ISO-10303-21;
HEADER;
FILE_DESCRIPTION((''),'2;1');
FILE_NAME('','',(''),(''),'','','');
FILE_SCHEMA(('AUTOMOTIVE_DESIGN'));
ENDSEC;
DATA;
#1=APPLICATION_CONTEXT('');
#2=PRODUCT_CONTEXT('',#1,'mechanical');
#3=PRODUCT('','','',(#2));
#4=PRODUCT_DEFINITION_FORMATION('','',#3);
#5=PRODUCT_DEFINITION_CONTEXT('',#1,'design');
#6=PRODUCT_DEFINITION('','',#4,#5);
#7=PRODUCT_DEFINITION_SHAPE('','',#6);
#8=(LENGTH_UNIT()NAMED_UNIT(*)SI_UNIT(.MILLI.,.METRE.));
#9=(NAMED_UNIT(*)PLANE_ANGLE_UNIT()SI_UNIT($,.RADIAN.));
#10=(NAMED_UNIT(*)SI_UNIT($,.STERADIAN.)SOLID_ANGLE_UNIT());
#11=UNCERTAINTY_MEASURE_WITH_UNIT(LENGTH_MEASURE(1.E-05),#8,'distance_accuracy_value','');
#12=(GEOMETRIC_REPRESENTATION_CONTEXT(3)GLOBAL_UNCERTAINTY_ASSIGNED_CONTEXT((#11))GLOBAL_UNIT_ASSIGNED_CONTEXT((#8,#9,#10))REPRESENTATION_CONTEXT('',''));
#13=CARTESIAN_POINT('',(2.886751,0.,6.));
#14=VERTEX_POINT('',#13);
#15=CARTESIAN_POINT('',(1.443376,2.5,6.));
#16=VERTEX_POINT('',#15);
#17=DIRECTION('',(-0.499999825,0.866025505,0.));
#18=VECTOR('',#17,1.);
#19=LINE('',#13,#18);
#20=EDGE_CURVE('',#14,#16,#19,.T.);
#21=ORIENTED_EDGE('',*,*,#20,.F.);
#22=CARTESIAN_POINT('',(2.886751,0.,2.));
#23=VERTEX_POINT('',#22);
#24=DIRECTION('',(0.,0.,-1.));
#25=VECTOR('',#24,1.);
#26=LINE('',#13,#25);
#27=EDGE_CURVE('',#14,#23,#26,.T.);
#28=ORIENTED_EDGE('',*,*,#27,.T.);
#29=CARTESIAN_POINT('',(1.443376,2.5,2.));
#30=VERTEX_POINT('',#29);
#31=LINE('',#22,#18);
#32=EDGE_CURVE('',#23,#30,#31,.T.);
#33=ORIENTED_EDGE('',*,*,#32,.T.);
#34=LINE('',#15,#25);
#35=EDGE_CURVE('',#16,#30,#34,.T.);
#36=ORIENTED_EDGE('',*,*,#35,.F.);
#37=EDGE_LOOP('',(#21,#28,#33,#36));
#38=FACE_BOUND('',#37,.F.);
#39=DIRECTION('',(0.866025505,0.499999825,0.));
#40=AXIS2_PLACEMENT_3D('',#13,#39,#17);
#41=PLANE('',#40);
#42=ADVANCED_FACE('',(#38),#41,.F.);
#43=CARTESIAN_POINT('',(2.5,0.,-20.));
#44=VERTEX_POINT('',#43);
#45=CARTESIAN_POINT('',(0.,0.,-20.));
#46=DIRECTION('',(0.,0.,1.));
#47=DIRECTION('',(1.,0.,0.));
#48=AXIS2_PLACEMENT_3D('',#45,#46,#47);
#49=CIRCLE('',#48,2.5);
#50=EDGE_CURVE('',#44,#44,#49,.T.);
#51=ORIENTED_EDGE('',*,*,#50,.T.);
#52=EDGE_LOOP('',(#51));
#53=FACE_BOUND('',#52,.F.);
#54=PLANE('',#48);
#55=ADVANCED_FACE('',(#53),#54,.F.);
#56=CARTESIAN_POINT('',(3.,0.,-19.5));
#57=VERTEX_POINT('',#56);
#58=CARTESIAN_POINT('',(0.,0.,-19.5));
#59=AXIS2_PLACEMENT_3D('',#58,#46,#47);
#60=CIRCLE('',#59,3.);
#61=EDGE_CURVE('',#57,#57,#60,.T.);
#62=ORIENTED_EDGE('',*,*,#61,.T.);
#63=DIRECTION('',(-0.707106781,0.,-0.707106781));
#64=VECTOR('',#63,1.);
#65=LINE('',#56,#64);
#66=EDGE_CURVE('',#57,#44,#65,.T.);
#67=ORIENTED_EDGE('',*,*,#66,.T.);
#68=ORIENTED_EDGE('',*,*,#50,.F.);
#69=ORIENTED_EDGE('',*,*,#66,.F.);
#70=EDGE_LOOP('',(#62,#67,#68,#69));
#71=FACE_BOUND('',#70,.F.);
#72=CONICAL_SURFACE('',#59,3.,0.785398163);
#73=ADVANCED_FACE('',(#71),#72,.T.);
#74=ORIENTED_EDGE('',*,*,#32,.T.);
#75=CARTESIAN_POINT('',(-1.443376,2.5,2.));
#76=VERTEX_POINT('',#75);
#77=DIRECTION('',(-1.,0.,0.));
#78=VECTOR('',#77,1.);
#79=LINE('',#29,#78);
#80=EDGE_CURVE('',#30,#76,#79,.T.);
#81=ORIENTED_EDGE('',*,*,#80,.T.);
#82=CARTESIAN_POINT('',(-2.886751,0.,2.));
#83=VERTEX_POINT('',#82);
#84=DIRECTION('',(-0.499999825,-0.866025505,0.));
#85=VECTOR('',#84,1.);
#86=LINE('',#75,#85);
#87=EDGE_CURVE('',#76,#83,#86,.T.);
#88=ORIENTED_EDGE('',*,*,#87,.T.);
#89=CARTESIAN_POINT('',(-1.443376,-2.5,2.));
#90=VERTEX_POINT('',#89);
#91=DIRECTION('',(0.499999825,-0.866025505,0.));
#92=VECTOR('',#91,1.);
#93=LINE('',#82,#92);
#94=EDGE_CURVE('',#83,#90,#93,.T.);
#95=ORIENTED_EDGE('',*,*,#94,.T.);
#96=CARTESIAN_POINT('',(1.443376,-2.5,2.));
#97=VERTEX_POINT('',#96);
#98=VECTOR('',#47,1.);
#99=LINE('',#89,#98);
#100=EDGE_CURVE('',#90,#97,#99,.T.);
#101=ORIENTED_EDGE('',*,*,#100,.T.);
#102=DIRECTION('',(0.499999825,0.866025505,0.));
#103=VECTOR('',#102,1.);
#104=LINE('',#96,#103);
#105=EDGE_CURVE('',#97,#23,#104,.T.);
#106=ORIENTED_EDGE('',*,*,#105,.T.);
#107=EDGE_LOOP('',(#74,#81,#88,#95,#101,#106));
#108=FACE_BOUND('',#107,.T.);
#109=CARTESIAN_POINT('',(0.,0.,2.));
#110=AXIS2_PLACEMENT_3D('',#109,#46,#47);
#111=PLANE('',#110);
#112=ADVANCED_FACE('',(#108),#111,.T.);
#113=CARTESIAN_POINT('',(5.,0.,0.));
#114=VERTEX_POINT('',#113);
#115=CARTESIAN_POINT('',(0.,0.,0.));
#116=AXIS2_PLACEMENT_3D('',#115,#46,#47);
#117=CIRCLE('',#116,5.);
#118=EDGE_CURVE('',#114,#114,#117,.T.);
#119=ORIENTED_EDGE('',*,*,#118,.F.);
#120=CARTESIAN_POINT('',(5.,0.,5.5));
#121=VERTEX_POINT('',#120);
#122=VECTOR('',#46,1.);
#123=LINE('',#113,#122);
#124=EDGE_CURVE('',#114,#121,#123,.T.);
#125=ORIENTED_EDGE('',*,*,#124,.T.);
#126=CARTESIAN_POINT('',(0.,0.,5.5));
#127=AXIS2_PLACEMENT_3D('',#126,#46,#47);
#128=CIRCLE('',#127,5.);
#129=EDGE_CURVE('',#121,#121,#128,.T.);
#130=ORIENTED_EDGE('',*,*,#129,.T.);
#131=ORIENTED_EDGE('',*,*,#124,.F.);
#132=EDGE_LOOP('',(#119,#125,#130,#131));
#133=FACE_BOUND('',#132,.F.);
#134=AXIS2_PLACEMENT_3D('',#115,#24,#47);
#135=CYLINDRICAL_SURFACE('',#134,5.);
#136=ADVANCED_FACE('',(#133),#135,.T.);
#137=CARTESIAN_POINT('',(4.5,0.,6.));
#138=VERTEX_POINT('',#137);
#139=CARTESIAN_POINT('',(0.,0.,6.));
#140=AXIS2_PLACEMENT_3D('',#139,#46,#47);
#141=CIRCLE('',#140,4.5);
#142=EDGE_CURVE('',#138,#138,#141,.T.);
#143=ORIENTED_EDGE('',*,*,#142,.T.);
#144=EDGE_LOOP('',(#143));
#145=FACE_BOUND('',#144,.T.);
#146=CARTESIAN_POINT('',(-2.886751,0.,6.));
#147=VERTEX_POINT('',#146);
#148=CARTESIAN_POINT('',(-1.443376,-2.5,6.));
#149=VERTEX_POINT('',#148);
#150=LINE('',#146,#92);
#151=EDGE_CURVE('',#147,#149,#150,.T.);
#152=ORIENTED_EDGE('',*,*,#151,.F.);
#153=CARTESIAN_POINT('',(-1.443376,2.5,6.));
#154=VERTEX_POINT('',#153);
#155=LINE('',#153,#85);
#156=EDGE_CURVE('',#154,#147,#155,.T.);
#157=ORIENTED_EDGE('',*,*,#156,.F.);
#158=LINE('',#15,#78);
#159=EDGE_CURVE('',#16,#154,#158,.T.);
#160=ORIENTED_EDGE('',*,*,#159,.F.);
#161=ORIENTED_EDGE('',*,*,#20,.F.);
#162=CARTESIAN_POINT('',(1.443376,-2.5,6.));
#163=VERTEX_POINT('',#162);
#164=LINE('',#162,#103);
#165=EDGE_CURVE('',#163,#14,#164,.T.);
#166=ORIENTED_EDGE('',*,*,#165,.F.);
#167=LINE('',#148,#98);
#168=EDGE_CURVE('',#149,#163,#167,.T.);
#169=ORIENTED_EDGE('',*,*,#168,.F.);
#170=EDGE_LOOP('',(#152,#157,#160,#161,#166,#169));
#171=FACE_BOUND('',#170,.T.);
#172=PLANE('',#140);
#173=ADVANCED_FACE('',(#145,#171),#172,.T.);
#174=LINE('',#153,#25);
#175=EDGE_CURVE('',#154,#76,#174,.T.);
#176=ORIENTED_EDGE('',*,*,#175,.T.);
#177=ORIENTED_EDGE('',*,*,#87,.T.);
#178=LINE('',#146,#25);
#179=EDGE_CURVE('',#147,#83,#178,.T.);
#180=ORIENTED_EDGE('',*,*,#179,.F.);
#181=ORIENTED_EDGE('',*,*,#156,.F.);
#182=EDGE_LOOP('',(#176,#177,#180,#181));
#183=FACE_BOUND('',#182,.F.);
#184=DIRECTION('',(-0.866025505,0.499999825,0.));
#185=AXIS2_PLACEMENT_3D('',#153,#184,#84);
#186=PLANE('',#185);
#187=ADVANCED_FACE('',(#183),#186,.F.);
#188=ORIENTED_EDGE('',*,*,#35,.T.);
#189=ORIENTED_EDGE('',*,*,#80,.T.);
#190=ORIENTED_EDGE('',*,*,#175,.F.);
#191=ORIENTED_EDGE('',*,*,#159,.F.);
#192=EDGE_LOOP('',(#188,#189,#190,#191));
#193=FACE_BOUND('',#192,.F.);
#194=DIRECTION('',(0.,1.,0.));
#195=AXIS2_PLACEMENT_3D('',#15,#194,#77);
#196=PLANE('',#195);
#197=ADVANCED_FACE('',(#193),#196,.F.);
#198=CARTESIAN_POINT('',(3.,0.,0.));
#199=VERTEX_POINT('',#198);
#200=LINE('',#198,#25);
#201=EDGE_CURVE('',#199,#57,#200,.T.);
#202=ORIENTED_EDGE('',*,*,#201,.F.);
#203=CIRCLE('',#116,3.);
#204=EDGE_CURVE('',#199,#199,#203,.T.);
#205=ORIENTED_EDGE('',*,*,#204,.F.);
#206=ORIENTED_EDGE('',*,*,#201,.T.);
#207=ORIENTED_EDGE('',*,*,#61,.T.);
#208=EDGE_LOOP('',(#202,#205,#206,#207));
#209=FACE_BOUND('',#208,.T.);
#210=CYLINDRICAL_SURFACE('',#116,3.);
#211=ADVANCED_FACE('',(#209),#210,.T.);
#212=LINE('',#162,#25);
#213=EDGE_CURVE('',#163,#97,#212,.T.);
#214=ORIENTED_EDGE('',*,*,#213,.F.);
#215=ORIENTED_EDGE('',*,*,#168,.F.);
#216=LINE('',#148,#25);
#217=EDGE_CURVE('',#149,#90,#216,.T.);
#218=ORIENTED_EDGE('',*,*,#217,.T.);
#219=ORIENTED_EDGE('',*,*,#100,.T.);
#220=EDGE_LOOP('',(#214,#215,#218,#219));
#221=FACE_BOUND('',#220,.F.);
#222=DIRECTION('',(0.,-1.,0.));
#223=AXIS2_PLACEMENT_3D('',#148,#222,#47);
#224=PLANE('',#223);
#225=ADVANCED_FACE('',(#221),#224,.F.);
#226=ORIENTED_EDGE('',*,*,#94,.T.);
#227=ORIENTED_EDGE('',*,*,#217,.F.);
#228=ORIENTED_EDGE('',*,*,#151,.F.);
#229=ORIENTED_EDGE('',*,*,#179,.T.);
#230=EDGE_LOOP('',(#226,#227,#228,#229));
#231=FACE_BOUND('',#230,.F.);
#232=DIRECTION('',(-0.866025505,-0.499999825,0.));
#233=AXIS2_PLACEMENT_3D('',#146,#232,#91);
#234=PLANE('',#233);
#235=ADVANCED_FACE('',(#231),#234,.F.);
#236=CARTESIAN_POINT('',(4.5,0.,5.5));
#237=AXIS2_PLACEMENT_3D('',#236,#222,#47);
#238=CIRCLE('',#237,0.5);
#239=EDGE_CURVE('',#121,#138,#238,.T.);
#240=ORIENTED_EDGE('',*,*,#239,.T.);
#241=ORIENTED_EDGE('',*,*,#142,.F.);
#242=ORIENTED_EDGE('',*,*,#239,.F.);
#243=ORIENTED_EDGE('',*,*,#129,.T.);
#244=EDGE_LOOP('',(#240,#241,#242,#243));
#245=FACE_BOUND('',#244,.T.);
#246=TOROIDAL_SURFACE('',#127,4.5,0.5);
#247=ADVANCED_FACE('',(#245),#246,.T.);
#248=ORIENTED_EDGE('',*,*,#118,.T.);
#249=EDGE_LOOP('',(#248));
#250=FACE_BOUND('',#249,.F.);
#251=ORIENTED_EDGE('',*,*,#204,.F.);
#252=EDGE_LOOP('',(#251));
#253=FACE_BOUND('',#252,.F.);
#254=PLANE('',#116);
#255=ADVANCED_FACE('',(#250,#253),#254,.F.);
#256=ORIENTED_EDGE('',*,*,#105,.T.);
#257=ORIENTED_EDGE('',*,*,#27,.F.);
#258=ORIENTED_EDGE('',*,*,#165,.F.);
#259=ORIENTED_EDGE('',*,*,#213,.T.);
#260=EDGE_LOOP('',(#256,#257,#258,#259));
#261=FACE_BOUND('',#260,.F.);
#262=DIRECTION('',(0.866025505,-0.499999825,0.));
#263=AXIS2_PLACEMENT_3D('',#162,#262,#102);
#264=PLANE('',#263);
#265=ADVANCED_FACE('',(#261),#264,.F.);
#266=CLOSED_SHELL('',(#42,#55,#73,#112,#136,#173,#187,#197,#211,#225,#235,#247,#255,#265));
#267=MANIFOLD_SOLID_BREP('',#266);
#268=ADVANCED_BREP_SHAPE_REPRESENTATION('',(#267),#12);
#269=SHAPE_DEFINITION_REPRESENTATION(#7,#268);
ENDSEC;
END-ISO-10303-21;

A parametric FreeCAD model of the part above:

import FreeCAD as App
import Part
import Sketcher
from FreeCAD import Vector
Q = App.Units.Quantity


def edges_at(feature, points):
    """Names of the edges that pass closest to the given points."""
    edges = feature.Shape.Edges
    near = lambda p: min(range(len(edges)), key=lambda i: edges[i].distToShape(Part.Vertex(*p))[0])
    return sorted({f"Edge{near(p) + 1}" for p in points})


def add_polygon(sketch, points):
    """Adds a closed chain of lines whose ends are joined by coincident constraints."""
    first, n = sketch.GeometryCount, len(points)
    for a, b in zip(points, points[1:] + points[:1]):
        sketch.addGeometry(Part.LineSegment(App.Vector(*a, 0), App.Vector(*b, 0)), False)
    for i in range(n):
        sketch.addConstraint(Sketcher.Constraint("Coincident", first + i, 2, first + (i + 1) % n, 1))

doc = App.newDocument("Part")
params = doc.addObject("Spreadsheet::Sheet", "Params")
for row, (alias, value) in enumerate([
    ("sketch1_diameter", "10 mm"),
    ("pad1_length", "6 mm"),
    ("pocket1_length", "4 mm"),
    ("sketch3_diameter", "6 mm"),
    ("pad2_length", "20 mm"),
    ("fillet_radius", "0.5 mm"),
    ("chamfer_size", "0.5 mm"),
], start=1):
    params.set(f"A{row}", alias)
    params.set(f"B{row}", "=" + value)
    params.setAlias(f"B{row}", alias)

body = doc.addObject("PartDesign::Body", "Body")

# Sketch on XY plane
sketch1 = doc.addObject("Sketcher::SketchObject", "Sketch")
body.addObject(sketch1)
sketch1.AttachmentSupport = (doc.XY_Plane, [""])
sketch1.MapMode = "FlatFace"
sketch1.addGeometry(Part.Circle(Vector(0, 0, 0), Vector(0, 0, 1), 5), False)
sketch1.addConstraint([
    Sketcher.Constraint("Coincident", 0, 3, -1, 1),
    Sketcher.Constraint("Diameter", 0, Q("10 mm")),
])
sketch1.setExpression("Constraints[1]", "Params.sketch1_diameter")
pad1 = doc.addObject("PartDesign::Pad", "Pad")
body.addObject(pad1)
pad1.Profile = sketch1
pad1.setExpression("Length", "Params.pad1_length")

# Sketch on XY plane
sketch2 = doc.addObject("Sketcher::SketchObject", "Sketch001")
body.addObject(sketch2)
sketch2.AttachmentSupport = (doc.XY_Plane, [""])
sketch2.MapMode = "FlatFace"
sketch2.AttachmentOffset = App.Placement(Vector(0, 0, 6), App.Rotation())
add_polygon(sketch2, [(2.9, 0), (1.4, 2.5), (-1.4, 2.5), (-2.9, 0), (-1.4, -2.5), (1.4, -2.5)])  # lines 0-5
sketch2.addConstraint([
    Sketcher.Constraint("Horizontal", 1),
    Sketcher.Constraint("Horizontal", 4),
    Sketcher.Constraint("Symmetric", 0, 2, 3, 2, -1, 1),
    Sketcher.Constraint("Symmetric", 2, 2, 5, 2, -1, 1),
    Sketcher.Constraint("PointOnObject", 2, 2, -1),
    Sketcher.Constraint("Parallel", 2, 5),
    Sketcher.Constraint("Vertical", 1, 2, 3, 2),
    Sketcher.Constraint("Angle", 0, Q("119.999988 deg")),
    Sketcher.Constraint("DistanceY", 3, 2, 1, 2, Q("5 mm")),
    Sketcher.Constraint("DistanceX", 1, 2, 1, 1, Q("2.886752 mm")),
])
pocket1 = doc.addObject("PartDesign::Pocket", "Pocket")
body.addObject(pocket1)
pocket1.Profile = sketch2
pocket1.setExpression("Length", "Params.pocket1_length")

# Sketch on XY plane
sketch3 = doc.addObject("Sketcher::SketchObject", "Sketch002")
body.addObject(sketch3)
sketch3.AttachmentSupport = (doc.XY_Plane, [""])
sketch3.MapMode = "FlatFace"
sketch3.addGeometry(Part.Circle(Vector(0, 0, 0), Vector(0, 0, 1), 3), False)
sketch3.addConstraint([
    Sketcher.Constraint("Coincident", 0, 3, -1, 1),
    Sketcher.Constraint("Diameter", 0, Q("6 mm")),
])
sketch3.setExpression("Constraints[1]", "Params.sketch3_diameter")
pad2 = doc.addObject("PartDesign::Pad", "Pad001")
body.addObject(pad2)
pad2.Profile = sketch3
pad2.setExpression("Length", "Params.pad2_length")
pad2.Reversed = True
doc.recompute()

fillet = doc.addObject("PartDesign::Fillet", "Fillet")
body.addObject(fillet)
fillet.Base = (pad2, edges_at(pad2, [(-5, 0, 6)]))
fillet.setExpression("Radius", "Params.fillet_radius")
doc.recompute()

chamfer = doc.addObject("PartDesign::Chamfer", "Chamfer")
body.addObject(chamfer)
chamfer.Base = (fillet, edges_at(fillet, [(-3, 0, -20)]))
chamfer.setExpression("Size", "Params.chamfer_size")

doc.recompute()
